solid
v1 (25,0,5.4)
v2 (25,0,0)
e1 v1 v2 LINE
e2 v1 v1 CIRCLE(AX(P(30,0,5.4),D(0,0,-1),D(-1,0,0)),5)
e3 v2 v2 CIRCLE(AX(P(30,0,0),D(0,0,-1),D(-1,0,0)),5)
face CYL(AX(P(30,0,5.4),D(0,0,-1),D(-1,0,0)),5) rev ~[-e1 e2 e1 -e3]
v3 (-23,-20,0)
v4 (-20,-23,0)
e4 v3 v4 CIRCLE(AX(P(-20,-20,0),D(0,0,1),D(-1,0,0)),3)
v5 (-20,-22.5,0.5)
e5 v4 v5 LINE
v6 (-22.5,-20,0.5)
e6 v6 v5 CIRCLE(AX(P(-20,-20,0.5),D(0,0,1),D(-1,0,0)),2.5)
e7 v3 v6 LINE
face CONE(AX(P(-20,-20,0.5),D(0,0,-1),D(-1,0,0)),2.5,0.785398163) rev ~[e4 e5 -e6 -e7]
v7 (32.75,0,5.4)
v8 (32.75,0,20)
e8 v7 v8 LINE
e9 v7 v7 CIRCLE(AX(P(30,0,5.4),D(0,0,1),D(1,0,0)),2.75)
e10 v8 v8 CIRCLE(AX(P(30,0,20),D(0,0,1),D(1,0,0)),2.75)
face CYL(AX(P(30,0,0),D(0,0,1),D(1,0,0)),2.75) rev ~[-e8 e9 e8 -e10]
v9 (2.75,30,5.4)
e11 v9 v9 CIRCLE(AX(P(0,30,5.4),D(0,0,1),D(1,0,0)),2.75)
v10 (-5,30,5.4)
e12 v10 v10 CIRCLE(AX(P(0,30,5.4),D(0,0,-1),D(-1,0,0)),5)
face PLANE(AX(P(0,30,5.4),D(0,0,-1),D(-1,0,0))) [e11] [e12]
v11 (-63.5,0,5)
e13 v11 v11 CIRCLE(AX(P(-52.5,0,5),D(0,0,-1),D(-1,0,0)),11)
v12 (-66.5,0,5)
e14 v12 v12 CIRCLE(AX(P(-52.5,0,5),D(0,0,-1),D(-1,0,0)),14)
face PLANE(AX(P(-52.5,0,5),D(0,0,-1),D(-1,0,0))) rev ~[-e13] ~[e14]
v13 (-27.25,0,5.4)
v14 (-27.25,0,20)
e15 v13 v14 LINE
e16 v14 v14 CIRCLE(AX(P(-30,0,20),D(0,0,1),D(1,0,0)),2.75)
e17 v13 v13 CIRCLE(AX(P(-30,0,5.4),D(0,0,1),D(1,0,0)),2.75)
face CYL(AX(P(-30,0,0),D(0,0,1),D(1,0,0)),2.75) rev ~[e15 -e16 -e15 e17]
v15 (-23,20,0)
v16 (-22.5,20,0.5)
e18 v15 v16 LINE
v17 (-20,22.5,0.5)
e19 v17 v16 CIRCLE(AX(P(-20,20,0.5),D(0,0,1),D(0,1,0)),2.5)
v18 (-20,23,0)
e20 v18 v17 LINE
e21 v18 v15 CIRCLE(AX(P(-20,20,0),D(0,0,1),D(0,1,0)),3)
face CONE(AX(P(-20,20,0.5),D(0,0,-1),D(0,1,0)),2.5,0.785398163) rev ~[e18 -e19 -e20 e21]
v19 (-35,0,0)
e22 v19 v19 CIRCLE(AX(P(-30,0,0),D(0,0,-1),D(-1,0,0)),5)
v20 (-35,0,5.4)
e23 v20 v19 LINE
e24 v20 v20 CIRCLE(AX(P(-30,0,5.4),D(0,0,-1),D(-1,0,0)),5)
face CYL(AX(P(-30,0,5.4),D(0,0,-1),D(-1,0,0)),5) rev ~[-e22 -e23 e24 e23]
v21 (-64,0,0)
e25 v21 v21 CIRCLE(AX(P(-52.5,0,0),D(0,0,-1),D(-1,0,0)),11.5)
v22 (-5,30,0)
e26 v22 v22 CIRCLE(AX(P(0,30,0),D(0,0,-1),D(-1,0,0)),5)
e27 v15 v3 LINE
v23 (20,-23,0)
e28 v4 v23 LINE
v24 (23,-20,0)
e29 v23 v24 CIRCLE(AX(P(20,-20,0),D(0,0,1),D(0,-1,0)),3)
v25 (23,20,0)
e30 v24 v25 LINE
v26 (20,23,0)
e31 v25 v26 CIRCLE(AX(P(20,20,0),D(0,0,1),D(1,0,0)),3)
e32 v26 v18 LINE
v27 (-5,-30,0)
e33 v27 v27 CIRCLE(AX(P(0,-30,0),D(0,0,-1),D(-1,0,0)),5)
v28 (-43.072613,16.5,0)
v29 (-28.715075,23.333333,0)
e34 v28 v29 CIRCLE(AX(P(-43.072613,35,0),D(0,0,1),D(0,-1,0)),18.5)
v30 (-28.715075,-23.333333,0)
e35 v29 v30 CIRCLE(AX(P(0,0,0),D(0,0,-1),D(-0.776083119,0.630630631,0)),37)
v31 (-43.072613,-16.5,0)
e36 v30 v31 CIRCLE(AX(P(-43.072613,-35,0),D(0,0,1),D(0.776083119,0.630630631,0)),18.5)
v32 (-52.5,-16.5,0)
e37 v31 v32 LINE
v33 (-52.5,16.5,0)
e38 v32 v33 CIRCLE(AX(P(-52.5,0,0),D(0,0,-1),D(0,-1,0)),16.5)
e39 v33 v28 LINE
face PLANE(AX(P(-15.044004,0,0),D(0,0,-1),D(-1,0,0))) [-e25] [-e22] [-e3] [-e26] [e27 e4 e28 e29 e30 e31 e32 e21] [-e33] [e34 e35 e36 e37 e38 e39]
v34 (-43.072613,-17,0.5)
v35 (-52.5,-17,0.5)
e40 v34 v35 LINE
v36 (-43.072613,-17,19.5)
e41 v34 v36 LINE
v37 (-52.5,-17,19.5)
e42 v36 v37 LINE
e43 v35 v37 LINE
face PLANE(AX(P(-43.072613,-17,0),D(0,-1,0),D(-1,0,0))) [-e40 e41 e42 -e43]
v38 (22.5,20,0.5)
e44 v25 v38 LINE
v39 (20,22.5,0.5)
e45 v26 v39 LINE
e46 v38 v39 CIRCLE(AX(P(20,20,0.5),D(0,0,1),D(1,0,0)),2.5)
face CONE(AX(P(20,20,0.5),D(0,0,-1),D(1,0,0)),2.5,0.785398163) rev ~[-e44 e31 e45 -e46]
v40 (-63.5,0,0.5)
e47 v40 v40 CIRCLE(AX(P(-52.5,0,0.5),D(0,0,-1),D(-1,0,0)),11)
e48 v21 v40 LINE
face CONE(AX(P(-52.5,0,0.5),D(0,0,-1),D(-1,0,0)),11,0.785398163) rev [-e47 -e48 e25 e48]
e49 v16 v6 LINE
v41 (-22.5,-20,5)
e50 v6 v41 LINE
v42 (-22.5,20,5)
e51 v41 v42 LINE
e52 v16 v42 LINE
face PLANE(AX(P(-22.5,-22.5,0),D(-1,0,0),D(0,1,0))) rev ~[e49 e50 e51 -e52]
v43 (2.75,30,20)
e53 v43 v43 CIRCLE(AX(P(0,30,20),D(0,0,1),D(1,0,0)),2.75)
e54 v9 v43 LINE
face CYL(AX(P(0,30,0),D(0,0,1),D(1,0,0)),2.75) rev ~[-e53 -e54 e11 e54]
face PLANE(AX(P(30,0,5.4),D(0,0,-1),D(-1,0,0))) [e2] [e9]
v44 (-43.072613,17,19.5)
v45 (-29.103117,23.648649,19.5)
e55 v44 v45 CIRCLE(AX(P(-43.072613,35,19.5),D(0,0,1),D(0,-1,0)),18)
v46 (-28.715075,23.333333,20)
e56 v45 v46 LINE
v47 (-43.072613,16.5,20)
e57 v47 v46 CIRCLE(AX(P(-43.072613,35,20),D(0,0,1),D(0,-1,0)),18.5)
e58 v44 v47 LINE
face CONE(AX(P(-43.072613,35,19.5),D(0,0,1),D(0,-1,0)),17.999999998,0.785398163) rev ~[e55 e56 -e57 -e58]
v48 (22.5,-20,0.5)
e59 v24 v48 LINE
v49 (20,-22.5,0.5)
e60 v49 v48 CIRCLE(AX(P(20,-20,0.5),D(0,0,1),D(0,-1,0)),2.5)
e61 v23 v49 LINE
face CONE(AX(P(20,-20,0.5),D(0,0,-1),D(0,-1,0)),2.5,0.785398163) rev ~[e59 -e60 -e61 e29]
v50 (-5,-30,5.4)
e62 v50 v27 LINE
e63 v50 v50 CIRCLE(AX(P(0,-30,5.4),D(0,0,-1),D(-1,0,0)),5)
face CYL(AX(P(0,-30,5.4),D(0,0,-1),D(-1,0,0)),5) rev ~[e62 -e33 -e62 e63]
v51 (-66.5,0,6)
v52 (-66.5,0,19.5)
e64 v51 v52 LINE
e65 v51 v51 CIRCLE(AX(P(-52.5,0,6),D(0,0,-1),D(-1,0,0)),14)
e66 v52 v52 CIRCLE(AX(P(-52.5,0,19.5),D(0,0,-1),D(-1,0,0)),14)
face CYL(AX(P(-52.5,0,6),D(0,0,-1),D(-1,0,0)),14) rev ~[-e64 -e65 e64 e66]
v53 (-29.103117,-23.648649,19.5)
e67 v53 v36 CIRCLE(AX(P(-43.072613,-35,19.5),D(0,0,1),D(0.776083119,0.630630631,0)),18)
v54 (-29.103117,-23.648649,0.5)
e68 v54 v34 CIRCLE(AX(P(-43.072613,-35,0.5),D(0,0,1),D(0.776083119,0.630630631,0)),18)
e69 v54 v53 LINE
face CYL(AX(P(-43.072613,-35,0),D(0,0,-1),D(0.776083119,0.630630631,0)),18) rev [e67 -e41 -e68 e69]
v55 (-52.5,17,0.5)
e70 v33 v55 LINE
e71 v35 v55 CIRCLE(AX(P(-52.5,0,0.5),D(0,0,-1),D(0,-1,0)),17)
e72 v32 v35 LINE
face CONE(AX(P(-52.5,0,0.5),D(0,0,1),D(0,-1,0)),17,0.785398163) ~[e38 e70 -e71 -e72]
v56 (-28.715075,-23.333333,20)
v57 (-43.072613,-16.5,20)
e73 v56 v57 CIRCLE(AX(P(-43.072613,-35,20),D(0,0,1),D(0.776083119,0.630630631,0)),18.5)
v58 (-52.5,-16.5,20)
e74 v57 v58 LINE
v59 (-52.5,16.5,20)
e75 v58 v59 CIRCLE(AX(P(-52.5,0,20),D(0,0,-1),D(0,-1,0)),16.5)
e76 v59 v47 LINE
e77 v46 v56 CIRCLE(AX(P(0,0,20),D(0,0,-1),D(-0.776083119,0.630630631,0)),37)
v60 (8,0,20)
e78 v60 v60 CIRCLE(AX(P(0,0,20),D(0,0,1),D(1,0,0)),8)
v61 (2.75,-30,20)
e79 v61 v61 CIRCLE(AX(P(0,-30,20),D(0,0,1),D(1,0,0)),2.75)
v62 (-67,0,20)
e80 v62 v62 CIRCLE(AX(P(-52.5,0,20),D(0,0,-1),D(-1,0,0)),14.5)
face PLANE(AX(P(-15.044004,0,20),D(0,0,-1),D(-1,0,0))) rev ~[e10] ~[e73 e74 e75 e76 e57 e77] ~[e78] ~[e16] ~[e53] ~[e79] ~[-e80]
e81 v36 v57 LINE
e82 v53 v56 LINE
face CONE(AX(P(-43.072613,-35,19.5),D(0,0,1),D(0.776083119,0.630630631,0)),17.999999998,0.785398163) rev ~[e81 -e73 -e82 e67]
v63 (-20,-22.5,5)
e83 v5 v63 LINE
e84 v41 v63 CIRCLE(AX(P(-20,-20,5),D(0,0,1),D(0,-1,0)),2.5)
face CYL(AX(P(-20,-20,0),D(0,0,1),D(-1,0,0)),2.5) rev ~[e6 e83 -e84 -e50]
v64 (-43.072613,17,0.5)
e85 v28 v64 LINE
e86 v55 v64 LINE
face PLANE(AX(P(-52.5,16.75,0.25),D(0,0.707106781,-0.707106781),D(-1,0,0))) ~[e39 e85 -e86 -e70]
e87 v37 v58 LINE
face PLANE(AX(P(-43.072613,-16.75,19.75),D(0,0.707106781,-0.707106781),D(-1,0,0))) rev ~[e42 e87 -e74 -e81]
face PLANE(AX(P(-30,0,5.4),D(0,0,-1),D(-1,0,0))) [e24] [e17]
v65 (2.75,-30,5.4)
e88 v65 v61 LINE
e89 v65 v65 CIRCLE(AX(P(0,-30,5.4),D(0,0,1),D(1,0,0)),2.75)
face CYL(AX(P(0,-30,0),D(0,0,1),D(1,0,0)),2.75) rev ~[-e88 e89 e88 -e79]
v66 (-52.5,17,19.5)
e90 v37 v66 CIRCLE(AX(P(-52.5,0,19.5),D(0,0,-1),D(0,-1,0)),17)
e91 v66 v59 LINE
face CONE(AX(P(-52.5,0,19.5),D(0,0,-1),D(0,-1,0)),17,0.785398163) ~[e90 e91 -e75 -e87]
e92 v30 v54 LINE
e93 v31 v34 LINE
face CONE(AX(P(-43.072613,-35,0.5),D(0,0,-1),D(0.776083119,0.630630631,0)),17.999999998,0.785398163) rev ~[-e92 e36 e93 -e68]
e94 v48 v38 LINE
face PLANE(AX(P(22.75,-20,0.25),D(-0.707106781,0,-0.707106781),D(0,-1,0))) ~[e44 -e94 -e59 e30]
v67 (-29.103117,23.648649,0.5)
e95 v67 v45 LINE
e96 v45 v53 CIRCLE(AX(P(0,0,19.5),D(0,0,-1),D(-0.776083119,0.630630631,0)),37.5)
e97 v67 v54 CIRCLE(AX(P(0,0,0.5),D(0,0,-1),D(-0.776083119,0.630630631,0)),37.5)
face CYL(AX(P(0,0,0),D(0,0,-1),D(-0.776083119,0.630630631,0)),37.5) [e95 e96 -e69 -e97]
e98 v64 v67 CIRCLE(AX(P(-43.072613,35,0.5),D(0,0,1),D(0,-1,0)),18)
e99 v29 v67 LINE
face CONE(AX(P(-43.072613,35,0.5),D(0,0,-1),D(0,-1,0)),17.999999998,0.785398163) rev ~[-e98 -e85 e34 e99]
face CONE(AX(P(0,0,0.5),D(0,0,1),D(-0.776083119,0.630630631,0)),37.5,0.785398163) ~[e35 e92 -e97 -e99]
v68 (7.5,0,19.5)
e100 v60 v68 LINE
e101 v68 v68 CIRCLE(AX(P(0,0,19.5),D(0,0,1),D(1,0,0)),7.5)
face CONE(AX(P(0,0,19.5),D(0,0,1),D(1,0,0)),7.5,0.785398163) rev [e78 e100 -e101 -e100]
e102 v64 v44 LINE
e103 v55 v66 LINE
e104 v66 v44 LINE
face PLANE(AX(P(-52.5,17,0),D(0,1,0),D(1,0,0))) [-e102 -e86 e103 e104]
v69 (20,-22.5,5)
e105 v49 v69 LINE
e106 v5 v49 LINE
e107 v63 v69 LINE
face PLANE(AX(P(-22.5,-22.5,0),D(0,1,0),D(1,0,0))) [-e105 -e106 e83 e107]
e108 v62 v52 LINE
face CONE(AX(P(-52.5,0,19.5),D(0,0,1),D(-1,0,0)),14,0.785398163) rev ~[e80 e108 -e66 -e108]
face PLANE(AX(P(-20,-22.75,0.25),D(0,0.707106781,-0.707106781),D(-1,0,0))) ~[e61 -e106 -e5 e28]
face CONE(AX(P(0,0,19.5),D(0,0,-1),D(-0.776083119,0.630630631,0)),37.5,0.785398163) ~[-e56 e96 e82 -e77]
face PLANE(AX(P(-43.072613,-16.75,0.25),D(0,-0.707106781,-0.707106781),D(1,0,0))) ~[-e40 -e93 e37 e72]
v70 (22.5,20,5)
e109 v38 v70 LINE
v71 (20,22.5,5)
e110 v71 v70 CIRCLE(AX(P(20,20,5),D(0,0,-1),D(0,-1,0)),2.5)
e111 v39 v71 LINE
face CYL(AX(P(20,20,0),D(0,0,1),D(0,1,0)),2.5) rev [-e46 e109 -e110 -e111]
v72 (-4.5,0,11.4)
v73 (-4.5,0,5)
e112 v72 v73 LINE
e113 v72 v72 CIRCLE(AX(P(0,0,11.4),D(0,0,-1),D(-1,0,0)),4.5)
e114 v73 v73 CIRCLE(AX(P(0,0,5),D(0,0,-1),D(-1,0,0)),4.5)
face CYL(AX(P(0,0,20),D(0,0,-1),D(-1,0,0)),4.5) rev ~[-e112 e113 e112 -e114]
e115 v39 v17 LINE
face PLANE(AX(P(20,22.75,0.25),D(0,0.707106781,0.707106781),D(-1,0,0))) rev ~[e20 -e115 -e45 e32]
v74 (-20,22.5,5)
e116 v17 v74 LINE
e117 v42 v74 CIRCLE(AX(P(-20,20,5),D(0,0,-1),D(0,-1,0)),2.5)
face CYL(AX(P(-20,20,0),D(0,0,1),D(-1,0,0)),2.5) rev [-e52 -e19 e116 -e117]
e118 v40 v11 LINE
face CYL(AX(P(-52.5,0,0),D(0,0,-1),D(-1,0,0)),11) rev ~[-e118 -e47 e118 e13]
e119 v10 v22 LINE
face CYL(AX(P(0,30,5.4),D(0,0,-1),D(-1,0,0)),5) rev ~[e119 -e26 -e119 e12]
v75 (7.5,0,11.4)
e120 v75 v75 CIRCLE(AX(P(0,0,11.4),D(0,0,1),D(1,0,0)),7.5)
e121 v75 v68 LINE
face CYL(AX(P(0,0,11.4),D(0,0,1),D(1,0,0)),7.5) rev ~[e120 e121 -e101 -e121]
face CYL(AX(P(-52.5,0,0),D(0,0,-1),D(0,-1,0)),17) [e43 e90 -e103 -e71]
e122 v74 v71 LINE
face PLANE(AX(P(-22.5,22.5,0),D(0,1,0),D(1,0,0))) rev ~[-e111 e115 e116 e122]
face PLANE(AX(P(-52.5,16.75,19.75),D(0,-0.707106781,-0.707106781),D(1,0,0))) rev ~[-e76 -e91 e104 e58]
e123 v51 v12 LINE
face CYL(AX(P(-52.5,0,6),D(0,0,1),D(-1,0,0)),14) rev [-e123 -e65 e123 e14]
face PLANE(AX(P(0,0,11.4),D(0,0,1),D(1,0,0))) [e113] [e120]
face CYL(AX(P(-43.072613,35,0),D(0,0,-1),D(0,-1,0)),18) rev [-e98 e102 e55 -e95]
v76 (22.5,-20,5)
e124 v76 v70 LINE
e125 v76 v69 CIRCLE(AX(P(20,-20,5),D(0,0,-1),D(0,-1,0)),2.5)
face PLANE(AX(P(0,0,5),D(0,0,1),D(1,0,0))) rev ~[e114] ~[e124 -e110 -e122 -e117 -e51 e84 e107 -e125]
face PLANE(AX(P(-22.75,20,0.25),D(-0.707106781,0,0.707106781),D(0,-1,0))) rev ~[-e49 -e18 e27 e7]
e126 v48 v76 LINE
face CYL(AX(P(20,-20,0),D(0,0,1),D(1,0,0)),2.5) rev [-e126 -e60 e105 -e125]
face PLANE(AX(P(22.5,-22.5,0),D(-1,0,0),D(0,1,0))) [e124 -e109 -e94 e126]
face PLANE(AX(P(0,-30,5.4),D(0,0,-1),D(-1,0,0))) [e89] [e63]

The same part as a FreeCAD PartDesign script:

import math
import FreeCAD as App
import Part
import Sketcher

V = App.Vector
Q = App.Units.Quantity


def edges_at(feature, points):
    """Names of the edges that pass closest to the given points."""
    edges = feature.Shape.Edges
    near = lambda p: min(range(len(edges)), key=lambda i: edges[i].distToShape(Part.Vertex(*p))[0])
    return sorted({f"Edge{near(p) + 1}" for p in points})


def add_polygon(sketch, points):
    """Adds a closed chain of lines whose ends are joined by coincident constraints."""
    first, n = sketch.GeometryCount, len(points)
    for a, b in zip(points, points[1:] + points[:1]):
        sketch.addGeometry(Part.LineSegment(App.Vector(*a, 0), App.Vector(*b, 0)), False)
    for i in range(n):
        sketch.addConstraint(Sketcher.Constraint("Coincident", first + i, 2, first + (i + 1) % n, 1))

doc = App.newDocument("Part")
params = doc.addObject("Spreadsheet::Sheet", "Params")
for row, (alias, value) in enumerate([
    ("sketch1_radius", "17 mm"),
    ("sketch1_radius2", "18 mm"),
    ("sketch1_radius3", "37.5 mm"),
    ("pad1_length", "20 mm"),
    ("sketch2_width", "45 mm"),
    ("pocket1_length", "5 mm"),
    ("sketch3_diameter", "9 mm"),
    ("hole_diameter", "9 mm"),
    ("hole_depth", "23 mm"),
    ("hole_cbore_diameter", "15 mm"),
    ("hole_cbore_depth", "8.6 mm"),
    ("fillet_radius", "2.5 mm"),
    ("sketch4_diameter", "22 mm"),
    ("pocket2_length", "6 mm"),
    ("sketch5_diameter", "28 mm"),
    ("pocket3_length", "1 mm"),
    ("pocket3_length2", "15 mm"),
    ("chamfer_size", "0.5 mm"),
    ("sketch6_diameter", "5.5 mm"),
    ("hole2_diameter", "5.5 mm"),
    ("hole2_cbore_diameter", "10 mm"),
    ("hole2_cbore_depth", "5.4 mm"),
], start=1):
    params.set(f"A{row}", alias)
    params.set(f"B{row}", "=" + value)
    params.setAlias(f"B{row}", alias)

body = doc.addObject("PartDesign::Body", "Body")

# Sketch on XY plane
sketch1 = doc.addObject("Sketcher::SketchObject", "Sketch")
body.addObject(sketch1)
sketch1.AttachmentSupport = (doc.XY_Plane, [""])
sketch1.MapMode = "FlatFace"
sketch1.addGeometry([
    Part.LineSegment(V(-43, 17, 0), V(-52, 17, 0)),  # 0
    Part.ArcOfCircle(Part.Circle(V(-52, 0, 0), V(0, 0, 1), 17), math.radians(90), math.radians(270)),  # 1
    Part.LineSegment(V(-52, -17, 0), V(-43, -17, 0)),  # 2
    Part.ArcOfCircle(Part.Circle(V(-43, -35, 0), V(0, 0, 1), 18), math.radians(39), math.radians(90)),  # 3
    Part.ArcOfCircle(Part.Circle(V(0, 0, 0), V(0, 0, 1), 38), math.radians(-141), math.radians(141)),  # 4
    Part.ArcOfCircle(Part.Circle(V(-43, 35, 0), V(0, 0, 1), 18), math.radians(-90), math.radians(-39)),  # 5
], False)
sketch1.addConstraint([
    Sketcher.Constraint("Tangent", 0, 2, 1, 1),
    Sketcher.Constraint("Tangent", 1, 2, 2, 1),
    Sketcher.Constraint("Tangent", 2, 2, 3, 2),
    Sketcher.Constraint("Tangent", 3, 1, 4, 1),
    Sketcher.Constraint("Tangent", 4, 2, 5, 2),
    Sketcher.Constraint("Tangent", 5, 1, 0, 1),
    Sketcher.Constraint("Horizontal", 0),
    Sketcher.Constraint("Horizontal", 2),
    Sketcher.Constraint("Coincident", 4, 3, -1, 1),
    Sketcher.Constraint("Equal", 3, 5),
    Sketcher.Constraint("PointOnObject", 1, 3, -1),
    Sketcher.Constraint("Radius", 1, Q("17 mm")),
    Sketcher.Constraint("Radius", 3, Q("18 mm")),
    Sketcher.Constraint("Radius", 4, Q("37.5 mm")),
    Sketcher.Constraint("DistanceX", 1, 3, -1, 1, Q("52.5 mm")),
])
sketch1.setExpression("Constraints[11]", "Params.sketch1_radius")
sketch1.setExpression("Constraints[12]", "Params.sketch1_radius2")
sketch1.setExpression("Constraints[13]", "Params.sketch1_radius3")
pad1 = doc.addObject("PartDesign::Pad", "Pad")
body.addObject(pad1)
pad1.Profile = sketch1
pad1.setExpression("Length", "Params.pad1_length")

# Sketch on XY plane
sketch2 = doc.addObject("Sketcher::SketchObject", "Sketch001")
body.addObject(sketch2)
sketch2.AttachmentSupport = (doc.XY_Plane, [""])
sketch2.MapMode = "FlatFace"
add_polygon(sketch2, [(-22, 22), (-22, -22), (22, -22), (22, 22)])  # lines 0-3
sketch2.addConstraint([
    Sketcher.Constraint("Vertical", 0),
    Sketcher.Constraint("Horizontal", 1),
    Sketcher.Constraint("Vertical", 2),
    Sketcher.Constraint("Horizontal", 3),
    Sketcher.Constraint("Symmetric", 0, 2, 2, 2, -1, 1),
    Sketcher.Constraint("Equal", 3, 0),
    Sketcher.Constraint("DistanceX", 1, 1, 1, 2, Q("45 mm")),
])
sketch2.setExpression("Constraints[10]", "Params.sketch2_width")
pocket1 = doc.addObject("PartDesign::Pocket", "Pocket")
body.addObject(pocket1)
pocket1.Profile = sketch2
pocket1.setExpression("Length", "Params.pocket1_length")
pocket1.Reversed = True

# Sketch on XY plane
sketch3 = doc.addObject("Sketcher::SketchObject", "Sketch002")
body.addObject(sketch3)
sketch3.AttachmentSupport = (doc.XY_Plane, [""])
sketch3.MapMode = "FlatFace"
sketch3.AttachmentOffset = App.Placement(V(0, 0, 20), App.Rotation())
sketch3.addGeometry(Part.Circle(V(0, 0, 0), V(0, 0, 1), 4.5), False)
sketch3.addConstraint([
    Sketcher.Constraint("Coincident", 0, 3, -1, 1),
    Sketcher.Constraint("Diameter", 0, Q("9 mm")),
])
sketch3.setExpression("Constraints[1]", "Params.sketch3_diameter")
doc.recompute()
hole = doc.addObject("PartDesign::Hole", "Hole")
body.addObject(hole)
hole.Profile = sketch3
hole.ThreadType = "None"
hole.setExpression("Diameter", "Params.hole_diameter")
hole.DepthType = "Dimension"
hole.setExpression("Depth", "Params.hole_depth")
hole.DrillPoint = "Angled"
hole.DrillPointAngle = 118
hole.HoleCutType = "Counterbore"
hole.setExpression("HoleCutDiameter", "Params.hole_cbore_diameter")
hole.setExpression("HoleCutDepth", "Params.hole_cbore_depth")
doc.recompute()

fillet = doc.addObject("PartDesign::Fillet", "Fillet")
body.addObject(fillet)
fillet.Base = (hole, edges_at(hole, [
    (-22.5, 22.5, 2.5),
    (22.5, 22.5, 2.5),
    (22.5, -22.5, 2.5),
    (-22.5, -22.5, 2.5),
]))
fillet.setExpression("Radius", "Params.fillet_radius")

# Sketch on XY plane
sketch4 = doc.addObject("Sketcher::SketchObject", "Sketch003")
body.addObject(sketch4)
sketch4.AttachmentSupport = (doc.XY_Plane, [""])
sketch4.MapMode = "FlatFace"
sketch4.addGeometry(Part.Circle(V(-52, 0, 0), V(0, 0, 1), 11), False)
sketch4.addConstraint([
    Sketcher.Constraint("PointOnObject", 0, 3, -1),
    Sketcher.Constraint("Diameter", 0, Q("22 mm")),
    Sketcher.Constraint("DistanceX", 0, 3, -1, 1, Q("52.5 mm")),
])
sketch4.setExpression("Constraints[1]", "Params.sketch4_diameter")
pocket2 = doc.addObject("PartDesign::Pocket", "Pocket001")
body.addObject(pocket2)
pocket2.Profile = sketch4
pocket2.setExpression("Length", "Params.pocket2_length")
pocket2.Reversed = True

# Sketch on XY plane
sketch5 = doc.addObject("Sketcher::SketchObject", "Sketch004")
body.addObject(sketch5)
sketch5.AttachmentSupport = (doc.XY_Plane, [""])
sketch5.MapMode = "FlatFace"
sketch5.AttachmentOffset = App.Placement(V(0, 0, 6), App.Rotation())
sketch5.addGeometry(Part.Circle(V(-52, 0, 0), V(0, 0, 1), 14), False)
sketch5.addConstraint([
    Sketcher.Constraint("PointOnObject", 0, 3, -1),
    Sketcher.Constraint("Diameter", 0, Q("28 mm")),
    Sketcher.Constraint("DistanceX", 0, 3, -1, 1, Q("52.5 mm")),
])
sketch5.setExpression("Constraints[1]", "Params.sketch5_diameter")
pocket3 = doc.addObject("PartDesign::Pocket", "Pocket002")
body.addObject(pocket3)
pocket3.Profile = sketch5
pocket3.Type = "TwoLengths"
pocket3.setExpression("Length", "Params.pocket3_length")
pocket3.setExpression("Length2", "Params.pocket3_length2")
doc.recompute()

chamfer = doc.addObject("PartDesign::Chamfer", "Chamfer")
body.addObject(chamfer)
chamfer.Base = (pocket3, edges_at(pocket3, [
    (-47.786, 17, 20),
    (-69.5, 0, 20),
    (-47.786, -17, 20),
    (-35.337, -18.747, 20),
    (-7.5, 0, 20),
    (37.5, 0, 20),
    (22.5, 0, 0),
    (0, 22.5, 0),
    (0, -22.5, 0),
    (-22.5, 0, 0),
    (21.768, 21.768, 0),
    (21.768, -21.768, 0),
    (-21.768, -21.768, 0),
    (-21.768, 21.768, 0),
    (-35.337, -18.747, 0),
    (-41.5, 0, 0),
    (-47.786, -17, 0),
    (-38.5, 0, 20),
    (-69.5, 0, 0),
    (-35.337, 18.747, 20),
    (-47.786, 17, 0),
    (-35.337, 18.747, 0),
    (37.5, 0, 0),
]))
chamfer.setExpression("Size", "Params.chamfer_size")

# Sketch on XY plane
sketch6 = doc.addObject("Sketcher::SketchObject", "Sketch005")
body.addObject(sketch6)
sketch6.AttachmentSupport = (doc.XY_Plane, [""])
sketch6.MapMode = "FlatFace"
sketch6.addGeometry([
    Part.Circle(V(0, 30, 0), V(0, 0, 1), 2.8),
    Part.Circle(V(30, 0, 0), V(0, 0, 1), 2.8),
    Part.Circle(V(0, -30, 0), V(0, 0, 1), 2.8),
    Part.Circle(V(-30, 0, 0), V(0, 0, 1), 2.8),
], False)
sketch6.addConstraint([
    Sketcher.Constraint("Equal", 0, 1),
    Sketcher.Constraint("Equal", 1, 2),
    Sketcher.Constraint("Equal", 2, 3),
    Sketcher.Constraint("Symmetric", 0, 3, 2, 3, -1, 1),
    Sketcher.Constraint("Symmetric", 1, 3, 3, 3, -1, 1),
    Sketcher.Constraint("PointOnObject", 0, 3, -2),
    Sketcher.Constraint("PointOnObject", 1, 3, -1),
    Sketcher.Constraint("Diameter", 0, Q("5.5 mm")),
    Sketcher.Constraint("DistanceY", -1, 1, 0, 3, Q("30 mm")),
    Sketcher.Constraint("DistanceX", -1, 1, 1, 3, Q("30 mm")),
])
sketch6.setExpression("Constraints[7]", "Params.sketch6_diameter")
doc.recompute()
hole2 = doc.addObject("PartDesign::Hole", "Hole001")
body.addObject(hole2)
hole2.Profile = sketch6
hole2.ThreadType = "None"
hole2.setExpression("Diameter", "Params.hole2_diameter")
hole2.DepthType = "ThroughAll"
hole2.HoleCutType = "Counterbore"
hole2.setExpression("HoleCutDiameter", "Params.hole2_cbore_diameter")
hole2.setExpression("HoleCutDepth", "Params.hole2_cbore_depth")
hole2.Reversed = True

doc.recompute()
